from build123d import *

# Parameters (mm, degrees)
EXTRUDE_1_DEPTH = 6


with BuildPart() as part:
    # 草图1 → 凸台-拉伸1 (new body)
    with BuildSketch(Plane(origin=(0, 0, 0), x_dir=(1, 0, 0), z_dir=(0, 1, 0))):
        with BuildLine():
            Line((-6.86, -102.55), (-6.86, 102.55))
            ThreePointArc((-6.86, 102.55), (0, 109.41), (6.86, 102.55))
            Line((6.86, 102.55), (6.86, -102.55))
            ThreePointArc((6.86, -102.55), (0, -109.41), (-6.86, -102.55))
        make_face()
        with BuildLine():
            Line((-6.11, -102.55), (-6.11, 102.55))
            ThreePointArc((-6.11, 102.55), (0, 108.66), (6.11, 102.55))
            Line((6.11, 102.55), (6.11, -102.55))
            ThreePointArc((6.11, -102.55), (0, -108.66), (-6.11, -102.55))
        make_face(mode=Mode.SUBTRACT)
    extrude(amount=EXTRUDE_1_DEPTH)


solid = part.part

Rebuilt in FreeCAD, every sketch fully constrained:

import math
import FreeCAD as App
import Part
import Sketcher

doc = App.newDocument("Part")
body = doc.addObject("PartDesign::Body", "Body")

sketch1 = doc.addObject("Sketcher::SketchObject", "Sketch")
body.addObject(sketch1)
sketch1.AttachmentSupport = (doc.XZ_Plane, [""])
sketch1.MapMode = "FlatFace"
sketch1.addGeometry([
    Part.LineSegment(App.Vector(-7, -103, 0), App.Vector(-7, 103, 0)),
    Part.ArcOfCircle(Part.Circle(App.Vector(0, 103, 0), App.Vector(0, 0, 1), 7), math.radians(0), math.radians(180)),
    Part.LineSegment(App.Vector(7, 103, 0), App.Vector(7, -103, 0)),
    Part.ArcOfCircle(Part.Circle(App.Vector(0, -103, 0), App.Vector(0, 0, 1), 7), math.radians(180), math.radians(360)),
    Part.LineSegment(App.Vector(-6, 103, 0), App.Vector(-6, -103, 0)),
    Part.ArcOfCircle(Part.Circle(App.Vector(0, -103, 0), App.Vector(0, 0, 1), 6), math.radians(180), math.radians(360)),
    Part.LineSegment(App.Vector(6, -103, 0), App.Vector(6, 103, 0)),
    Part.ArcOfCircle(Part.Circle(App.Vector(0, 103, 0), App.Vector(0, 0, 1), 6), math.radians(0), math.radians(180)),
], False)
sketch1.addConstraint([
    Sketcher.Constraint("Tangent", 0, 2, 1, 2),
    Sketcher.Constraint("Tangent", 1, 1, 2, 1),
    Sketcher.Constraint("Tangent", 2, 2, 3, 2),
    Sketcher.Constraint("Tangent", 3, 1, 0, 1),
    Sketcher.Constraint("Tangent", 4, 2, 5, 1),
    Sketcher.Constraint("Tangent", 5, 2, 6, 1),
    Sketcher.Constraint("Tangent", 6, 2, 7, 1),
    Sketcher.Constraint("Tangent", 7, 2, 4, 1),
    Sketcher.Constraint("Vertical", 0),
    Sketcher.Constraint("Vertical", 2),
    Sketcher.Constraint("Vertical", 4),
    Sketcher.Constraint("Vertical", 6),
    Sketcher.Constraint("Coincident", 5, 3, 3, 3),
    Sketcher.Constraint("Symmetric", 1, 3, 3, 3, -1, 1),
    Sketcher.Constraint("Horizontal", 7, 3, 0, 2),
    Sketcher.Constraint("Radius", 1, 6.86),
    Sketcher.Constraint("Radius", 5, 6.11),
    Sketcher.Constraint("DistanceY", 0, 1, 0, 2, 205.1),
])
pad1 = doc.addObject("PartDesign::Pad", "Pad")
body.addObject(pad1)
pad1.Profile = sketch1
pad1.Length = 6
pad1.Reversed = True

doc.recompute()
